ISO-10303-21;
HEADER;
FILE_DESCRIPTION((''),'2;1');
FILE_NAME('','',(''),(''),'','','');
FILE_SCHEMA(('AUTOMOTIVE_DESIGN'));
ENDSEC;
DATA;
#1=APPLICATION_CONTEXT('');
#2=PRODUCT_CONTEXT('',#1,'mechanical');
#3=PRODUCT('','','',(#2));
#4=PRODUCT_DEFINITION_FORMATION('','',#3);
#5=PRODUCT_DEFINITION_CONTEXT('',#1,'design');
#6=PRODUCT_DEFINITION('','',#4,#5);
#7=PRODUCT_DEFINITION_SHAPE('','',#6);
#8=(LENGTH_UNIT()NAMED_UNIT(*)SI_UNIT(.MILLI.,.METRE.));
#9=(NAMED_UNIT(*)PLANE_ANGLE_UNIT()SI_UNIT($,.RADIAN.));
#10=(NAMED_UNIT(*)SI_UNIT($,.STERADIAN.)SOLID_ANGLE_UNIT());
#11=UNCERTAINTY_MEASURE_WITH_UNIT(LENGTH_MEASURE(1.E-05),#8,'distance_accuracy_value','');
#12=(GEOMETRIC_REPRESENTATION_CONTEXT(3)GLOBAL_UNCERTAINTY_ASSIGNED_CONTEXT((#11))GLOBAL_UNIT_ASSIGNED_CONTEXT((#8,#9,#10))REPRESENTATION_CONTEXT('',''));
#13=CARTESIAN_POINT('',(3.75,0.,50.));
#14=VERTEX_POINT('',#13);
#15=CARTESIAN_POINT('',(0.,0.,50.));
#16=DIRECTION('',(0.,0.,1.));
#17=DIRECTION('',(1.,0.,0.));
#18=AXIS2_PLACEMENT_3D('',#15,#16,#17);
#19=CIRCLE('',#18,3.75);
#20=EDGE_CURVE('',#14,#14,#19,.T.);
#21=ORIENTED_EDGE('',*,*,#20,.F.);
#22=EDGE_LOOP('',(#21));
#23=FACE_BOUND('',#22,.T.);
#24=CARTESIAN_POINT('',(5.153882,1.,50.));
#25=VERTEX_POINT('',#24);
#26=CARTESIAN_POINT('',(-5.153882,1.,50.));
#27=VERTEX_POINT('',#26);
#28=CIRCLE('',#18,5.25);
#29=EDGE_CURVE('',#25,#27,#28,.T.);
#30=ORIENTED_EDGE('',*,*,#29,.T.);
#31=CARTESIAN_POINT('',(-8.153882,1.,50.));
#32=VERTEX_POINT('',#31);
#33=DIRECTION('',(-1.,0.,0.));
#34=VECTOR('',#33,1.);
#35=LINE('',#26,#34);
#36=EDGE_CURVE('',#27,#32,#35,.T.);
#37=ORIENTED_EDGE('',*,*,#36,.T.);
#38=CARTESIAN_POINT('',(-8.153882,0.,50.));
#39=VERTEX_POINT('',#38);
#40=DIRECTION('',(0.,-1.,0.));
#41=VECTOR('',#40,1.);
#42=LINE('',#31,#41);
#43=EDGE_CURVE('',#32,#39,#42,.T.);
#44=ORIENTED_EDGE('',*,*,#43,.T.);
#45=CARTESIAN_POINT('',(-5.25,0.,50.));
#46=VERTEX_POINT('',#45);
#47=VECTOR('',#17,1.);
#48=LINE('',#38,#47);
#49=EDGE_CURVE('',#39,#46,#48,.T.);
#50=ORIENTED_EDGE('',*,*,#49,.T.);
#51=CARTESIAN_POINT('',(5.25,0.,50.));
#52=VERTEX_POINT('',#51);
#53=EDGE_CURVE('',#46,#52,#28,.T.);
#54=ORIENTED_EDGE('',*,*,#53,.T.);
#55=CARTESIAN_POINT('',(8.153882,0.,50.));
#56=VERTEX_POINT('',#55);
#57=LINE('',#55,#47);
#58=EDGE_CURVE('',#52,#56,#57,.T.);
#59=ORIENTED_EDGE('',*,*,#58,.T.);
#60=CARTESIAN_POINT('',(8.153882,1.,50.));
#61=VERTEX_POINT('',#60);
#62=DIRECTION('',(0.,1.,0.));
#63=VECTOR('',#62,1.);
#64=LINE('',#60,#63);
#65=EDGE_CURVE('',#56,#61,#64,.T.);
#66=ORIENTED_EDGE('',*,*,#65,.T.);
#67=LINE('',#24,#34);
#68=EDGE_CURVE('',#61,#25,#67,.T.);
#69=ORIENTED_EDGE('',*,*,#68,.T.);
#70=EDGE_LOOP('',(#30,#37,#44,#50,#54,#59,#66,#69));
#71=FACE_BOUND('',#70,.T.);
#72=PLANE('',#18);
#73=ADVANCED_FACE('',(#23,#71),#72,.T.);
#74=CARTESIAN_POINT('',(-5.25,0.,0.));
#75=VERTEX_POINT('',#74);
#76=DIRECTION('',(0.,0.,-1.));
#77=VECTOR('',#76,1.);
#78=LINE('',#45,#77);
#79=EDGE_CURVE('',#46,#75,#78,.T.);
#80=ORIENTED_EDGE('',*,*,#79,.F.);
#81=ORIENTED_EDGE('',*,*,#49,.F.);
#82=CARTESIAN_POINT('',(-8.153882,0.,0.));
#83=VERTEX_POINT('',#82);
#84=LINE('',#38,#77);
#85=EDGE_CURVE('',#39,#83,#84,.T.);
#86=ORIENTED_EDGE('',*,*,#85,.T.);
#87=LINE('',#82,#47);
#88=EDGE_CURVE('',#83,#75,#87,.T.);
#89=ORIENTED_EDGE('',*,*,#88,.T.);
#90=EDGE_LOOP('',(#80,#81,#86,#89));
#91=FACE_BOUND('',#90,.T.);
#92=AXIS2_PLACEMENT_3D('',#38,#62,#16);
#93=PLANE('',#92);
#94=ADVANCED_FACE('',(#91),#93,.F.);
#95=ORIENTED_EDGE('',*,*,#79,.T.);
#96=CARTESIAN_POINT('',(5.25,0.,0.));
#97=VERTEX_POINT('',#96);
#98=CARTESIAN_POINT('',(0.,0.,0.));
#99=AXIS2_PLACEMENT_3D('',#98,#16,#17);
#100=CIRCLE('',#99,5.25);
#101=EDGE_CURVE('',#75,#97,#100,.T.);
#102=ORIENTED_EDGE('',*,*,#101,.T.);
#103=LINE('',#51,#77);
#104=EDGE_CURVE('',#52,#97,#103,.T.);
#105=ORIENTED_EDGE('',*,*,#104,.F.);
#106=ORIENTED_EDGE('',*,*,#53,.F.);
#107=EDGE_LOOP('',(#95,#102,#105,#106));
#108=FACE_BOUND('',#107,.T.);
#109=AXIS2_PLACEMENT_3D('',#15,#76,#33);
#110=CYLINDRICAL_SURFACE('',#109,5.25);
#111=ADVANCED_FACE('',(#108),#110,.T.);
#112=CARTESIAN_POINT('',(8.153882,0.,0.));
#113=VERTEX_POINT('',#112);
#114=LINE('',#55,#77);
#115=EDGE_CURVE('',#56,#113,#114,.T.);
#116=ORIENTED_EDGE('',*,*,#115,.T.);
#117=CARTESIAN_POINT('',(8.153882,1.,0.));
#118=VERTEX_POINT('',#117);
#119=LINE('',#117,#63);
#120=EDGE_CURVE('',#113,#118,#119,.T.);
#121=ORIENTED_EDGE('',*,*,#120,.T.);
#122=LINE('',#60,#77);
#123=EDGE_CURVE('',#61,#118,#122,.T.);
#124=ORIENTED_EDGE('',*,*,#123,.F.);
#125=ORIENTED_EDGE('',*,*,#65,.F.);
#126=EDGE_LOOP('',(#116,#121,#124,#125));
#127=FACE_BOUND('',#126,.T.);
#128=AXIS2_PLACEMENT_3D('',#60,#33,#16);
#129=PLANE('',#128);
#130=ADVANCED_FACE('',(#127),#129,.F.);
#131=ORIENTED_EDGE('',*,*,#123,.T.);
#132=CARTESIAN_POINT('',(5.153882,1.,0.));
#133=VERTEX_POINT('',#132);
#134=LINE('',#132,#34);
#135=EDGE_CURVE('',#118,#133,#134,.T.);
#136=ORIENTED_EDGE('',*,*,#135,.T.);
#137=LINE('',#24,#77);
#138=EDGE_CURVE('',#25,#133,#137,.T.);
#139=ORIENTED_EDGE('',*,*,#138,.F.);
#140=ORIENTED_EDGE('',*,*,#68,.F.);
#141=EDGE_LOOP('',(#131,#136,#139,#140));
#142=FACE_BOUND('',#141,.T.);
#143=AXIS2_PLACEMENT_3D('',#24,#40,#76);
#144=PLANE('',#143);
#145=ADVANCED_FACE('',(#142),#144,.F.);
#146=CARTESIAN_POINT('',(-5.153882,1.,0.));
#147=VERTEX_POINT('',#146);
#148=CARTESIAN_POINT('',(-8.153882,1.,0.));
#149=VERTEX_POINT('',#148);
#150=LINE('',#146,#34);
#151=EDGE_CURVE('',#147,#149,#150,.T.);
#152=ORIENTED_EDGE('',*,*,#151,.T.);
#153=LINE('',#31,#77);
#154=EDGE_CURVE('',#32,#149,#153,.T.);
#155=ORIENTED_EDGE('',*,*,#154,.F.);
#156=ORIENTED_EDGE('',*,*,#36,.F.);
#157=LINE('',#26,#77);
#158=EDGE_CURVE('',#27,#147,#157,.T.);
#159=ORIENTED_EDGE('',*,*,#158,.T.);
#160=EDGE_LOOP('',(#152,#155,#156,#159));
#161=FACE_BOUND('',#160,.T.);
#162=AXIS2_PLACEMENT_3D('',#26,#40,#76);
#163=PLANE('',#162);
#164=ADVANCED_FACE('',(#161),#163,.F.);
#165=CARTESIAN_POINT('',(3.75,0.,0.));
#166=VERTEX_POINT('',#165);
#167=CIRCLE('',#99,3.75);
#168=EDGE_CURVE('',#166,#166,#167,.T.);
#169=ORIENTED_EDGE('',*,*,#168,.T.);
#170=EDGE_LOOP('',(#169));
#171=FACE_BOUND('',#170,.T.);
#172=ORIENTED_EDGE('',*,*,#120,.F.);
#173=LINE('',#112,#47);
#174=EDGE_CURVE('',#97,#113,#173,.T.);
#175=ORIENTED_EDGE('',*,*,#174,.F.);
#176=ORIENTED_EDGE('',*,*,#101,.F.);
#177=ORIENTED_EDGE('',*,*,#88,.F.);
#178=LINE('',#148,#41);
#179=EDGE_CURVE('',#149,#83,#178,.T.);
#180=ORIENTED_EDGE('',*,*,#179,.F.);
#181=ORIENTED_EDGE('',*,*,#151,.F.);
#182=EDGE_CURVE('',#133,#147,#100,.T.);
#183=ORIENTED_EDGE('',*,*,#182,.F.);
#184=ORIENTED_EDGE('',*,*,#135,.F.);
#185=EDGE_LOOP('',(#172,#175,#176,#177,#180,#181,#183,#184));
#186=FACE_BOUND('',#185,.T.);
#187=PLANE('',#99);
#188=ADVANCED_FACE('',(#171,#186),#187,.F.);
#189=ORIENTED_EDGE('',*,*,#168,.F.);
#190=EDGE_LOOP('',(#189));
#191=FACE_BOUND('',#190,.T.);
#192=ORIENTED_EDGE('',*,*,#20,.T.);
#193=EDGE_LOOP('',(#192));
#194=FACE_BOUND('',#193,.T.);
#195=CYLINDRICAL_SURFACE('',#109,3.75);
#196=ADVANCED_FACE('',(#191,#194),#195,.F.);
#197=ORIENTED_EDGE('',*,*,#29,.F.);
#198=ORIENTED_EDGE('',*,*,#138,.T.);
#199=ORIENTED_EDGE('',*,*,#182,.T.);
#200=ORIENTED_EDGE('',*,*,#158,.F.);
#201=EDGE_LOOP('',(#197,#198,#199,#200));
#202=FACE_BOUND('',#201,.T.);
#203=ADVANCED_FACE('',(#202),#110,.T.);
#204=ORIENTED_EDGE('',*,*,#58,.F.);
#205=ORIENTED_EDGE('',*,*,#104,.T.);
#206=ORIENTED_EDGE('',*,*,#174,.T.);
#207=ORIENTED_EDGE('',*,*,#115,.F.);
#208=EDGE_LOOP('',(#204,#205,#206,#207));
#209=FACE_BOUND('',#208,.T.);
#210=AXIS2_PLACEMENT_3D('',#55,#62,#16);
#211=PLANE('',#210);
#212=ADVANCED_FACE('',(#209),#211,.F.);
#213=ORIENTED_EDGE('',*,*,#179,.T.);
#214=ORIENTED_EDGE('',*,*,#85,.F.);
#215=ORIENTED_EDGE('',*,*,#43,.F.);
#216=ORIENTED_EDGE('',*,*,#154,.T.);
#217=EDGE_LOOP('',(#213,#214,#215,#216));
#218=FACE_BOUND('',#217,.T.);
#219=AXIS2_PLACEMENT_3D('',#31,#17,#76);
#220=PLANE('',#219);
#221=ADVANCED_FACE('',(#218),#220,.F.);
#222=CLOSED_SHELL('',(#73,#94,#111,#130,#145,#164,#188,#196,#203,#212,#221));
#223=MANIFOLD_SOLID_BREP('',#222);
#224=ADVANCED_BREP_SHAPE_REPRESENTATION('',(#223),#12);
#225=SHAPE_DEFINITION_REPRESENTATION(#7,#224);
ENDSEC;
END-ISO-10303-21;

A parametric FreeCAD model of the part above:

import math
import FreeCAD as App
import Part
import Sketcher

V = App.Vector
Q = App.Units.Quantity

doc = App.newDocument("Part")
body = doc.addObject("PartDesign::Body", "Body")

# Sketch on XY plane
sketch1 = body.newObject("Sketcher::SketchObject", "Sketch")
sketch1.AttachmentSupport = (doc.getObject("XY_Plane"), [""])
sketch1.MapMode = "FlatFace"
sketch1.addGeometry([
    Part.LineSegment(V(-8.2, 0, 0), V(-5.2, 0, 0)),  # 0
    Part.ArcOfCircle(Part.Circle(V(0, 0, 0), V(0, 0, 1), 5.2), math.radians(180), math.radians(360)),  # 1
    Part.LineSegment(V(5.2, 0, 0), V(8.2, 0, 0)),  # 2
    Part.LineSegment(V(8.2, 0, 0), V(8.2, 1, 0)),  # 3
    Part.LineSegment(V(8.2, 1, 0), V(5.2, 1, 0)),  # 4
    Part.ArcOfCircle(Part.Circle(V(0, 0, 0), V(0, 0, 1), 5.2), math.radians(11), math.radians(169)),  # 5
    Part.LineSegment(V(-5.2, 1, 0), V(-8.2, 1, 0)),  # 6
    Part.LineSegment(V(-8.2, 1, 0), V(-8.2, 0, 0)),  # 7
    Part.Circle(V(0, 0, 0), V(0, 0, 1), 3.8),  # 8
], False)
sketch1.addConstraint([
    Sketcher.Constraint("Coincident", 0, 2, 1, 1),
    Sketcher.Constraint("Coincident", 1, 2, 2, 1),
    Sketcher.Constraint("Coincident", 2, 2, 3, 1),
    Sketcher.Constraint("Coincident", 3, 2, 4, 1),
    Sketcher.Constraint("Coincident", 4, 2, 5, 1),
    Sketcher.Constraint("Coincident", 5, 2, 6, 1),
    Sketcher.Constraint("Coincident", 6, 2, 7, 1),
    Sketcher.Constraint("Coincident", 7, 2, 0, 1),
    Sketcher.Constraint("Horizontal", 0),
    Sketcher.Constraint("Horizontal", 2),
    Sketcher.Constraint("Vertical", 3),
    Sketcher.Constraint("Horizontal", 4),
    Sketcher.Constraint("Horizontal", 6),
    Sketcher.Constraint("Vertical", 7),
    Sketcher.Constraint("Coincident", 1, 3, -1, 1),
    Sketcher.Constraint("Coincident", 5, 3, -1, 1),
    Sketcher.Constraint("Coincident", 8, 3, -1, 1),
    Sketcher.Constraint("Equal", 1, 5),
    Sketcher.Constraint("Symmetric", 2, 2, 7, 2, -1, 1),
    Sketcher.Constraint("PointOnObject", 0, 2, -1),
    Sketcher.Constraint("Horizontal", 4, 2, 5, 2),
    Sketcher.Constraint("Diameter", 8, Q("7.5 mm")),
    Sketcher.Constraint("DistanceX", 4, 2, 4, 1, Q("3 mm")),
    Sketcher.Constraint("DistanceY", 3, 1, 3, 2, Q("1 mm")),
    Sketcher.Constraint("Radius", 1, Q("5.25 mm")),
])
pad1 = body.newObject("PartDesign::Pad", "Pad")
pad1.Profile = sketch1
pad1.Length = 50

doc.recompute()
